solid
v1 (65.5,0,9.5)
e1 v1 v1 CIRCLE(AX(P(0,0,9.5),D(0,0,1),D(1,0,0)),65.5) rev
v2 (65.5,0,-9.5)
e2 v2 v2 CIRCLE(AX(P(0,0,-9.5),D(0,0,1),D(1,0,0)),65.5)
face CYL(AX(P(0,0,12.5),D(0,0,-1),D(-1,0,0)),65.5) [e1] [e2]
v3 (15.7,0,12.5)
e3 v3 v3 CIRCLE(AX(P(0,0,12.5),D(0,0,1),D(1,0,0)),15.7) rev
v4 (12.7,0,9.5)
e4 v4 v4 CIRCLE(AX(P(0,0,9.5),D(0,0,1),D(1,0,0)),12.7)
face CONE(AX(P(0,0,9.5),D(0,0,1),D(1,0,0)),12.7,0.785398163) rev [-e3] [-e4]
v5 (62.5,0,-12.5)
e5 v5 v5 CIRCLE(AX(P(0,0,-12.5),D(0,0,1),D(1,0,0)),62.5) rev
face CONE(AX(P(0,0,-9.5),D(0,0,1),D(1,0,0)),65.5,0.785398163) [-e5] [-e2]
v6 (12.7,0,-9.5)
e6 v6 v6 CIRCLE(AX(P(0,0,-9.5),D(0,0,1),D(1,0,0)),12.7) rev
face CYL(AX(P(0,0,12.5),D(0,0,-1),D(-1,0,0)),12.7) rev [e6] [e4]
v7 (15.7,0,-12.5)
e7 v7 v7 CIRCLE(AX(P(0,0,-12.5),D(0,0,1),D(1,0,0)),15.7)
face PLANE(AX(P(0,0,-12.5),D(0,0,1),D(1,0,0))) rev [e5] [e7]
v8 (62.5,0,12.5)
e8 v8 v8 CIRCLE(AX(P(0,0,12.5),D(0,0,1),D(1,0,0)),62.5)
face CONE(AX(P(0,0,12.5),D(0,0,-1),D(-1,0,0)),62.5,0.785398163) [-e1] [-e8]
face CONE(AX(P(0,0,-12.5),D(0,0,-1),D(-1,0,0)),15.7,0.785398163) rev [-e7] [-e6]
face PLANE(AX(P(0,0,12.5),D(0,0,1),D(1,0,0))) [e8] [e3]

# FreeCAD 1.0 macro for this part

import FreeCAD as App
import Part
import Sketcher
from FreeCAD import Vector
Q = App.Units.Quantity


def edges_at(feature, points):
    """Names of the edges that pass closest to the given points."""
    edges = feature.Shape.Edges
    near = lambda p: min(range(len(edges)), key=lambda i: edges[i].distToShape(Part.Vertex(*p))[0])
    return sorted({f"Edge{near(p) + 1}" for p in points})

doc = App.newDocument("Part")
params = doc.addObject("Spreadsheet::Sheet", "Params")
for row, (alias, value) in enumerate([
    ("sketch1_diameter", "131 mm"),
    ("sketch1_diameter2", "25.4 mm"),
    ("pad1_length", "25 mm"),
    ("chamfer_size", "3 mm"),
], start=1):
    params.set(f"A{row}", alias)
    params.set(f"B{row}", "=" + value)
    params.setAlias(f"B{row}", alias)

body = doc.addObject("PartDesign::Body", "Body")

# Sketch on XY plane
sketch1 = body.newObject("Sketcher::SketchObject", "Sketch")
sketch1.AttachmentSupport = (doc.getObject("XY_Plane"), [""])
sketch1.MapMode = "FlatFace"
sketch1.addGeometry(Part.Circle(Vector(0, 0, 0), Vector(0, 0, 1), 65.5), False)
sketch1.addGeometry(Part.Circle(Vector(0, 0, 0), Vector(0, 0, 1), 12.7), False)
sketch1.addConstraint(Sketcher.Constraint("Coincident", 0, 3, -1, 1))
sketch1.addConstraint(Sketcher.Constraint("Coincident", 1, 3, -1, 1))
sketch1.addConstraint(Sketcher.Constraint("Diameter", 0, Q("131 mm")))
sketch1.addConstraint(Sketcher.Constraint("Diameter", 1, Q("25.4 mm")))
sketch1.setExpression("Constraints[2]", "Params.sketch1_diameter")
sketch1.setExpression("Constraints[3]", "Params.sketch1_diameter2")
pad1 = body.newObject("PartDesign::Pad", "Pad")
pad1.Profile = sketch1
pad1.setExpression("Length", "Params.pad1_length")
pad1.Midplane = True
doc.recompute()

chamfer = body.newObject("PartDesign::Chamfer", "Chamfer")
chamfer.Base = (pad1, edges_at(pad1, [
    (-65.5, 0, -12.5),
    (-65.5, 0, 12.5),
    (-12.7, 0, -12.5),
    (-12.7, 0, 12.5),
]))
chamfer.setExpression("Size", "Params.chamfer_size")

doc.recompute()
